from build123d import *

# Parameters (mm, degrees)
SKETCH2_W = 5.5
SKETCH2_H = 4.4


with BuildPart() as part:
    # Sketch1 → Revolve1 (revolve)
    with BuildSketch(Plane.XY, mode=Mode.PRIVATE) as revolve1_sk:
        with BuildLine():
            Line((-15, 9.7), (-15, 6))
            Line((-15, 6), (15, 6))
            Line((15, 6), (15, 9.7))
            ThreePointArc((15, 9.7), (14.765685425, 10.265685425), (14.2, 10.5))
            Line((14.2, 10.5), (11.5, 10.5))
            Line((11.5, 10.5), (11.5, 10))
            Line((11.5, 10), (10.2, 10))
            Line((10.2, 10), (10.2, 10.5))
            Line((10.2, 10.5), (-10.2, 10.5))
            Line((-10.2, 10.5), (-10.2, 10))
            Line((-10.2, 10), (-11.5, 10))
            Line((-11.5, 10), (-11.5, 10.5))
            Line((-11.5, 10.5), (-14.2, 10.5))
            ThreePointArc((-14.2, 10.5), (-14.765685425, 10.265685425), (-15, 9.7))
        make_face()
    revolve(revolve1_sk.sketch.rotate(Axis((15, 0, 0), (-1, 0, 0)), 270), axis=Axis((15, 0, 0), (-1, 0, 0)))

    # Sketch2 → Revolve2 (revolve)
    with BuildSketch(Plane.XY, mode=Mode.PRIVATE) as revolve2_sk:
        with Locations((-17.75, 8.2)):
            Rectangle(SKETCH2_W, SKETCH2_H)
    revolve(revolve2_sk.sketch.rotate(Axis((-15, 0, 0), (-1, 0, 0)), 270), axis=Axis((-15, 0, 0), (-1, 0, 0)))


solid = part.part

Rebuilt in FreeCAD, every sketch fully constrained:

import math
import FreeCAD as App
import Part
import Sketcher
from FreeCAD import Vector
Q = App.Units.Quantity

doc = App.newDocument("Part")
body = doc.addObject("PartDesign::Body", "Body")

# Sketch on XY plane
sketch1 = body.newObject("Sketcher::SketchObject", "Sketch")
sketch1.AttachmentSupport = (doc.getObject("XY_Plane"), [""])
sketch1.MapMode = "FlatFace"
sketch1.addGeometry([
    Part.LineSegment(Vector(-15, 9.7, 0), Vector(-15, 6, 0)),  # 0
    Part.LineSegment(Vector(-15, 6, 0), Vector(15, 6, 0)),  # 1
    Part.LineSegment(Vector(15, 6, 0), Vector(15, 9.7, 0)),  # 2
    Part.ArcOfCircle(Part.Circle(Vector(14.2, 9.7, 0), Vector(0, 0, 1), 0.8), math.radians(0), math.radians(90)),  # 3
    Part.LineSegment(Vector(14.2, 10.5, 0), Vector(11.5, 10.5, 0)),  # 4
    Part.LineSegment(Vector(11.5, 10.5, 0), Vector(11.5, 10, 0)),  # 5
    Part.LineSegment(Vector(11.5, 10, 0), Vector(10.2, 10, 0)),  # 6
    Part.LineSegment(Vector(10.2, 10, 0), Vector(10.2, 10.5, 0)),  # 7
    Part.LineSegment(Vector(10.2, 10.5, 0), Vector(-10.2, 10.5, 0)),  # 8
    Part.LineSegment(Vector(-10.2, 10.5, 0), Vector(-10.2, 10, 0)),  # 9
    Part.LineSegment(Vector(-10.2, 10, 0), Vector(-11.5, 10, 0)),  # 10
    Part.LineSegment(Vector(-11.5, 10, 0), Vector(-11.5, 10.5, 0)),  # 11
    Part.LineSegment(Vector(-11.5, 10.5, 0), Vector(-14.2, 10.5, 0)),  # 12
    Part.ArcOfCircle(Part.Circle(Vector(-14.2, 9.7, 0), Vector(0, 0, 1), 0.8), math.radians(90), math.radians(180)),  # 13
], False)
sketch1.addConstraint([
    Sketcher.Constraint("Coincident", 0, 2, 1, 1),
    Sketcher.Constraint("Coincident", 1, 2, 2, 1),
    Sketcher.Constraint("Tangent", 2, 2, 3, 1),
    Sketcher.Constraint("Tangent", 3, 2, 4, 1),
    Sketcher.Constraint("Coincident", 4, 2, 5, 1),
    Sketcher.Constraint("Coincident", 5, 2, 6, 1),
    Sketcher.Constraint("Coincident", 6, 2, 7, 1),
    Sketcher.Constraint("Coincident", 7, 2, 8, 1),
    Sketcher.Constraint("Coincident", 8, 2, 9, 1),
    Sketcher.Constraint("Coincident", 9, 2, 10, 1),
    Sketcher.Constraint("Coincident", 10, 2, 11, 1),
    Sketcher.Constraint("Coincident", 11, 2, 12, 1),
    Sketcher.Constraint("Tangent", 12, 2, 13, 1),
    Sketcher.Constraint("Tangent", 13, 2, 0, 1),
    Sketcher.Constraint("Vertical", 0),
    Sketcher.Constraint("Horizontal", 1),
    Sketcher.Constraint("Vertical", 2),
    Sketcher.Constraint("Horizontal", 4),
    Sketcher.Constraint("Vertical", 5),
    Sketcher.Constraint("Horizontal", 6),
    Sketcher.Constraint("Vertical", 7),
    Sketcher.Constraint("Horizontal", 8),
    Sketcher.Constraint("Vertical", 9),
    Sketcher.Constraint("Horizontal", 10),
    Sketcher.Constraint("Vertical", 11),
    Sketcher.Constraint("Horizontal", 12),
    Sketcher.Constraint("Equal", 3, 13),
    Sketcher.Constraint("Symmetric", 3, 3, 13, 3, -2),
    Sketcher.Constraint("Symmetric", 6, 2, 9, 2, -2),
    Sketcher.Constraint("Horizontal", 4, 2, 7, 2),
    Sketcher.Constraint("Equal", 6, 10),
    Sketcher.Constraint("Radius", 3, Q("0.8 mm")),
    Sketcher.Constraint("DistanceX", 1, 1, 1, 2, Q("30 mm")),
    Sketcher.Constraint("DistanceX", 4, 2, 4, 1, Q("2.7 mm")),
    Sketcher.Constraint("DistanceX", 6, 2, 6, 1, Q("1.3 mm")),
    Sketcher.Constraint("DistanceY", 0, 2, 0, 1, Q("3.7 mm")),
    Sketcher.Constraint("DistanceY", 5, 2, 5, 1, Q("0.5 mm")),
    Sketcher.Constraint("DistanceY", -1, 1, 0, 2, Q("6 mm")),
])
revolution = body.newObject("PartDesign::Revolution", "Revolution")
revolution.Profile = sketch1
revolution.ReferenceAxis = (sketch1, ["H_Axis"])
revolution.Angle = 360

# Sketch on XY plane
sketch2 = body.newObject("Sketcher::SketchObject", "Sketch001")
sketch2.AttachmentSupport = (doc.getObject("XY_Plane"), [""])
sketch2.MapMode = "FlatFace"
sketch2.addGeometry([
    Part.LineSegment(Vector(-20.5, 10.4, 0), Vector(-20.5, 6, 0)),
    Part.LineSegment(Vector(-20.5, 6, 0), Vector(-15, 6, 0)),
    Part.LineSegment(Vector(-15, 6, 0), Vector(-15, 10.4, 0)),
    Part.LineSegment(Vector(-15, 10.4, 0), Vector(-20.5, 10.4, 0)),
], False)
sketch2.addConstraint([
    Sketcher.Constraint("Coincident", 0, 2, 1, 1),
    Sketcher.Constraint("Coincident", 1, 2, 2, 1),
    Sketcher.Constraint("Coincident", 2, 2, 3, 1),
    Sketcher.Constraint("Coincident", 3, 2, 0, 1),
    Sketcher.Constraint("Vertical", 0),
    Sketcher.Constraint("Horizontal", 1),
    Sketcher.Constraint("Vertical", 2),
    Sketcher.Constraint("Horizontal", 3),
    Sketcher.Constraint("DistanceX", 1, 1, 1, 2, Q("5.5 mm")),
    Sketcher.Constraint("DistanceY", 0, 2, 0, 1, Q("4.4 mm")),
    Sketcher.Constraint("DistanceY", -1, 1, 0, 2, Q("6 mm")),
    Sketcher.Constraint("DistanceX", 1, 2, -1, 1, Q("15 mm")),
])
revolution2 = body.newObject("PartDesign::Revolution", "Revolution001")
revolution2.Profile = sketch2
revolution2.ReferenceAxis = (sketch2, ["H_Axis"])
revolution2.Angle = 360

doc.recompute()
